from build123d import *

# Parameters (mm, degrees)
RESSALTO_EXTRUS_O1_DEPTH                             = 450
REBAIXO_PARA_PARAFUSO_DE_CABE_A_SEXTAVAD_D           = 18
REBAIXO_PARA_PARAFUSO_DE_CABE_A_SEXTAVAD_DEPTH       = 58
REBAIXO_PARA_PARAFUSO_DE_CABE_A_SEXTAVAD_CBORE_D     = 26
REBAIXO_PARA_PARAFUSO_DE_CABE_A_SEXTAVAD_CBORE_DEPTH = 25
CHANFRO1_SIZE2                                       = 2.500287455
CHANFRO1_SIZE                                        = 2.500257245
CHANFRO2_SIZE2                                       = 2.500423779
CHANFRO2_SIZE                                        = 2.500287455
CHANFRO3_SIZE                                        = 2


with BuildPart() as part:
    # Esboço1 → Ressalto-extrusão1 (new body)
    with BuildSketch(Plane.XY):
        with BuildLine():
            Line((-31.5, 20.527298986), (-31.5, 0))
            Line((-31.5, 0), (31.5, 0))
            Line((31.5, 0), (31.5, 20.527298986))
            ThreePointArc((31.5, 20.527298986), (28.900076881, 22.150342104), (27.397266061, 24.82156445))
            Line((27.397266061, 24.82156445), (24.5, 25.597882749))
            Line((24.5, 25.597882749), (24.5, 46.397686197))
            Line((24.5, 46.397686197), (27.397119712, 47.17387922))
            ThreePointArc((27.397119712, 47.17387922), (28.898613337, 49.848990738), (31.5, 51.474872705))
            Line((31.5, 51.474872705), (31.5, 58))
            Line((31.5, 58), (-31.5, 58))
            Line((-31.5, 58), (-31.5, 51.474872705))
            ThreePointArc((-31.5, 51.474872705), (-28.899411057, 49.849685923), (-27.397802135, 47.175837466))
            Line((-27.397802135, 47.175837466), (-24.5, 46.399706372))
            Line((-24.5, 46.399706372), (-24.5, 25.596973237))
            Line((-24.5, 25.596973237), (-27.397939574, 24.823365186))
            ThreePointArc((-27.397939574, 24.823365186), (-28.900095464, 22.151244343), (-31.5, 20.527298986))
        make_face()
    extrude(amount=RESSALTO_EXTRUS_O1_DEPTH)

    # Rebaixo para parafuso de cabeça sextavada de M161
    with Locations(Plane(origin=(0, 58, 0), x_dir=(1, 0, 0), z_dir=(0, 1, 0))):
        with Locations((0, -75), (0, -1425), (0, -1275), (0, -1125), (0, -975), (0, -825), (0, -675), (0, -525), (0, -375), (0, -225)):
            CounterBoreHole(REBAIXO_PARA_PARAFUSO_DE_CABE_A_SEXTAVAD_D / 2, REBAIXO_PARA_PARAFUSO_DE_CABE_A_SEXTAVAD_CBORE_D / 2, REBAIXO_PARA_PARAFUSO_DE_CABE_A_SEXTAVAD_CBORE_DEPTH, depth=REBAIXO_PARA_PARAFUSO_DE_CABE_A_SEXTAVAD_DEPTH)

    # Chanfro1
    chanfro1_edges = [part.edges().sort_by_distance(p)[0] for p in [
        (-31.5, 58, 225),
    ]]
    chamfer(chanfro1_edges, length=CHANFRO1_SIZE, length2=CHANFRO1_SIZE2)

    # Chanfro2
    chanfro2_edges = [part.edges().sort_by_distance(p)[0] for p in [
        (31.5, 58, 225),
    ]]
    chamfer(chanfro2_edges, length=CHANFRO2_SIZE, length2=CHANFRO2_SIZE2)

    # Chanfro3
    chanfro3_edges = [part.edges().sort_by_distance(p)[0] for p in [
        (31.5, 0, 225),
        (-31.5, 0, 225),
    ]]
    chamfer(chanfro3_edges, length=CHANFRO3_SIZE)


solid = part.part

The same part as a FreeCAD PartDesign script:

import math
import FreeCAD as App
import Part
import Sketcher
Q = App.Units.Quantity


def edges_at(feature, points):
    """Names of the edges that pass closest to the given points."""
    edges = feature.Shape.Edges
    near = lambda p: min(range(len(edges)), key=lambda i: edges[i].distToShape(Part.Vertex(*p))[0])
    return sorted({f"Edge{near(p) + 1}" for p in points})

doc = App.newDocument("Part")
body = doc.addObject("PartDesign::Body", "Body")

sketch1 = body.newObject("Sketcher::SketchObject", "Sketch")
sketch1.AttachmentSupport = (doc.getObject("XY_Plane"), [""])
sketch1.MapMode = "FlatFace"
sketch1.addGeometry(Part.LineSegment(App.Vector(-31.5, 20.5, 0), App.Vector(-31.5, 0, 0)), False)
sketch1.addGeometry(Part.LineSegment(App.Vector(-31.5, 0, 0), App.Vector(31.5, 0, 0)), False)
sketch1.addGeometry(Part.LineSegment(App.Vector(31.5, 0, 0), App.Vector(31.5, 20.5, 0)), False)
sketch1.addGeometry(Part.ArcOfCircle(Part.Circle(App.Vector(33.4, 26.4, 0), App.Vector(0, 0, 1), 6.2), math.radians(-165), math.radians(-108)), False)
sketch1.addGeometry(Part.LineSegment(App.Vector(27.4, 24.8, 0), App.Vector(24.5, 25.6, 0)), False)
sketch1.addGeometry(Part.LineSegment(App.Vector(24.5, 25.6, 0), App.Vector(24.5, 46.4, 0)), False)
sketch1.addGeometry(Part.LineSegment(App.Vector(24.5, 46.4, 0), App.Vector(27.4, 47.2, 0)), False)
sketch1.addGeometry(Part.ArcOfCircle(Part.Circle(App.Vector(33.4, 45.6, 0), App.Vector(0, 0, 1), 6.2), math.radians(108), math.radians(165)), False)
sketch1.addGeometry(Part.LineSegment(App.Vector(31.5, 51.5, 0), App.Vector(31.5, 58, 0)), False)
sketch1.addGeometry(Part.LineSegment(App.Vector(31.5, 58, 0), App.Vector(-31.5, 58, 0)), False)
sketch1.addGeometry(Part.LineSegment(App.Vector(-31.5, 58, 0), App.Vector(-31.5, 51.5, 0)), False)
sketch1.addGeometry(Part.ArcOfCircle(Part.Circle(App.Vector(-33.4, 45.6, 0), App.Vector(0, 0, 1), 6.2), math.radians(15), math.radians(72)), False)
sketch1.addGeometry(Part.LineSegment(App.Vector(-27.4, 47.2, 0), App.Vector(-24.5, 46.4, 0)), False)
sketch1.addGeometry(Part.LineSegment(App.Vector(-24.5, 46.4, 0), App.Vector(-24.5, 25.6, 0)), False)
sketch1.addGeometry(Part.LineSegment(App.Vector(-24.5, 25.6, 0), App.Vector(-27.4, 24.8, 0)), False)
sketch1.addGeometry(Part.ArcOfCircle(Part.Circle(App.Vector(-33.4, 26.4, 0), App.Vector(0, 0, 1), 6.2), math.radians(-72), math.radians(-15)), False)
sketch1.addConstraint(Sketcher.Constraint("Coincident", 0, 2, 1, 1))
sketch1.addConstraint(Sketcher.Constraint("Coincident", 1, 2, 2, 1))
sketch1.addConstraint(Sketcher.Constraint("Coincident", 2, 2, 3, 2))
sketch1.addConstraint(Sketcher.Constraint("Coincident", 3, 1, 4, 1))
sketch1.addConstraint(Sketcher.Constraint("Coincident", 4, 2, 5, 1))
sketch1.addConstraint(Sketcher.Constraint("Coincident", 5, 2, 6, 1))
sketch1.addConstraint(Sketcher.Constraint("Coincident", 6, 2, 7, 2))
sketch1.addConstraint(Sketcher.Constraint("Coincident", 7, 1, 8, 1))
sketch1.addConstraint(Sketcher.Constraint("Coincident", 8, 2, 9, 1))
sketch1.addConstraint(Sketcher.Constraint("Coincident", 9, 2, 10, 1))
sketch1.addConstraint(Sketcher.Constraint("Coincident", 10, 2, 11, 2))
sketch1.addConstraint(Sketcher.Constraint("Coincident", 11, 1, 12, 1))
sketch1.addConstraint(Sketcher.Constraint("Coincident", 12, 2, 13, 1))
sketch1.addConstraint(Sketcher.Constraint("Coincident", 13, 2, 14, 1))
sketch1.addConstraint(Sketcher.Constraint("Coincident", 14, 2, 15, 2))
sketch1.addConstraint(Sketcher.Constraint("Coincident", 15, 1, 0, 1))
sketch1.addConstraint(Sketcher.Constraint("Vertical", 0))
sketch1.addConstraint(Sketcher.Constraint("Horizontal", 1))
sketch1.addConstraint(Sketcher.Constraint("Vertical", 2))
sketch1.addConstraint(Sketcher.Constraint("Vertical", 5))
sketch1.addConstraint(Sketcher.Constraint("Vertical", 8))
sketch1.addConstraint(Sketcher.Constraint("Horizontal", 9))
sketch1.addConstraint(Sketcher.Constraint("Vertical", 10))
sketch1.addConstraint(Sketcher.Constraint("Vertical", 13))
sketch1.addConstraint(Sketcher.Constraint("Equal", 3, 11))
sketch1.addConstraint(Sketcher.Constraint("Equal", 11, 15))
sketch1.addConstraint(Sketcher.Constraint("Symmetric", 0, 2, 1, 2, -1, 1))
sketch1.addConstraint(Sketcher.Constraint("Symmetric", 7, 1, 10, 2, -2))
sketch1.addConstraint(Sketcher.Constraint("Horizontal", 7, 3, 11, 3))
sketch1.addConstraint(Sketcher.Constraint("Horizontal", 2, 2, 15, 1))
sketch1.addConstraint(Sketcher.Constraint("Vertical", 2, 2, 7, 1))
sketch1.addConstraint(Sketcher.Constraint("DistanceX", 1, 1, 1, 2, Q("63 mm")))
sketch1.addConstraint(Sketcher.Constraint("DistanceY", -1, 1, 8, 2, Q("58 mm")))
sketch1.addConstraint(Sketcher.Constraint("DistanceX", 4, 2, 2, 2, Q("7 mm")))
sketch1.addConstraint(Sketcher.Constraint("DistanceX", 10, 2, 12, 2, Q("7 mm")))
sketch1.addConstraint(Sketcher.Constraint("Radius", 3, Q("6.190992 mm")))
sketch1.addConstraint(Sketcher.Constraint("Radius", 7, Q("6.190922 mm")))
sketch1.addConstraint(Sketcher.Constraint("DistanceY", 0, 2, 0, 1, Q("20.527299 mm")))
sketch1.addConstraint(Sketcher.Constraint("DistanceX", 11, 3, 3, 3, Q("66.7549 mm")))
sketch1.addConstraint(Sketcher.Constraint("DistanceY", 14, 2, 15, 3, Q("1.603302 mm")))
sketch1.addConstraint(Sketcher.Constraint("Distance", 4, Q("2.99947 mm")))
sketch1.addConstraint(Sketcher.Constraint("Distance", 12, Q("2.999939 mm")))
sketch1.addConstraint(Sketcher.Constraint("Distance", 14, Q("2.99942 mm")))
sketch1.addConstraint(Sketcher.Constraint("DistanceY", 5, 1, 5, 2, Q("20.799803 mm")))
sketch1.addConstraint(Sketcher.Constraint("DistanceY", 8, 1, 8, 2, Q("6.525127 mm")))
sketch1.addConstraint(Sketcher.Constraint("DistanceY", 13, 2, 13, 1, Q("20.802733 mm")))
sketch1.addConstraint(Sketcher.Constraint("DistanceX", -1, 1, 3, 3, Q("33.376458 mm")))
sketch1.addConstraint(Sketcher.Constraint("DistanceX", -1, 1, 6, 2, Q("27.39712 mm")))
sketch1.addConstraint(Sketcher.Constraint("DistanceX", 14, 2, -1, 1, Q("27.39794 mm")))
sketch1.addConstraint(Sketcher.Constraint("DistanceX", 3, 1, 3, 3, Q("5.979192 mm")))
pad1 = body.newObject("PartDesign::Pad", "Pad")
pad1.Profile = sketch1
pad1.Length = 450

sketch2 = body.newObject("Sketcher::SketchObject", "Sketch001")
sketch2.AttachmentSupport = (doc.getObject("XZ_Plane"), [""])
sketch2.MapMode = "FlatFace"
sketch2.AttachmentOffset = App.Placement(App.Vector(0, 0, -58), App.Rotation())
sketch2.addGeometry(Part.Circle(App.Vector(0, 75, 0), App.Vector(0, 0, 1), 9), False)
sketch2.addGeometry(Part.Circle(App.Vector(0, 1425, 0), App.Vector(0, 0, 1), 9), False)
sketch2.addGeometry(Part.Circle(App.Vector(0, 1275, 0), App.Vector(0, 0, 1), 9), False)
sketch2.addGeometry(Part.Circle(App.Vector(0, 1125, 0), App.Vector(0, 0, 1), 9), False)
sketch2.addGeometry(Part.Circle(App.Vector(0, 975, 0), App.Vector(0, 0, 1), 9), False)
sketch2.addGeometry(Part.Circle(App.Vector(0, 825, 0), App.Vector(0, 0, 1), 9), False)
sketch2.addGeometry(Part.Circle(App.Vector(0, 675, 0), App.Vector(0, 0, 1), 9), False)
sketch2.addGeometry(Part.Circle(App.Vector(0, 525, 0), App.Vector(0, 0, 1), 9), False)
sketch2.addGeometry(Part.Circle(App.Vector(0, 375, 0), App.Vector(0, 0, 1), 9), False)
sketch2.addGeometry(Part.Circle(App.Vector(0, 225, 0), App.Vector(0, 0, 1), 9), False)
sketch2.addConstraint(Sketcher.Constraint("Equal", 0, 1))
sketch2.addConstraint(Sketcher.Constraint("Equal", 1, 2))
sketch2.addConstraint(Sketcher.Constraint("Equal", 2, 3))
sketch2.addConstraint(Sketcher.Constraint("Equal", 3, 4))
sketch2.addConstraint(Sketcher.Constraint("Equal", 4, 5))
sketch2.addConstraint(Sketcher.Constraint("Equal", 5, 6))
sketch2.addConstraint(Sketcher.Constraint("Equal", 6, 7))
sketch2.addConstraint(Sketcher.Constraint("Equal", 7, 8))
sketch2.addConstraint(Sketcher.Constraint("Equal", 8, 9))
sketch2.addConstraint(Sketcher.Constraint("PointOnObject", 0, 3, -2))
sketch2.addConstraint(Sketcher.Constraint("PointOnObject", 1, 3, -2))
sketch2.addConstraint(Sketcher.Constraint("PointOnObject", 2, 3, -2))
sketch2.addConstraint(Sketcher.Constraint("PointOnObject", 3, 3, -2))
sketch2.addConstraint(Sketcher.Constraint("PointOnObject", 4, 3, -2))
sketch2.addConstraint(Sketcher.Constraint("PointOnObject", 5, 3, -2))
sketch2.addConstraint(Sketcher.Constraint("PointOnObject", 6, 3, -2))
sketch2.addConstraint(Sketcher.Constraint("PointOnObject", 7, 3, -2))
sketch2.addConstraint(Sketcher.Constraint("PointOnObject", 8, 3, -2))
sketch2.addConstraint(Sketcher.Constraint("PointOnObject", 9, 3, -2))
sketch2.addConstraint(Sketcher.Constraint("Diameter", 0, Q("18 mm")))
sketch2.addConstraint(Sketcher.Constraint("DistanceY", -1, 1, 0, 3, Q("75 mm")))
sketch2.addConstraint(Sketcher.Constraint("DistanceY", -1, 1, 1, 3, Q("1425 mm")))
sketch2.addConstraint(Sketcher.Constraint("DistanceY", -1, 1, 2, 3, Q("1275 mm")))
sketch2.addConstraint(Sketcher.Constraint("DistanceY", -1, 1, 3, 3, Q("1125 mm")))
sketch2.addConstraint(Sketcher.Constraint("DistanceY", -1, 1, 4, 3, Q("975 mm")))
sketch2.addConstraint(Sketcher.Constraint("DistanceY", -1, 1, 5, 3, Q("825 mm")))
sketch2.addConstraint(Sketcher.Constraint("DistanceY", -1, 1, 6, 3, Q("675 mm")))
sketch2.addConstraint(Sketcher.Constraint("DistanceY", -1, 1, 7, 3, Q("525 mm")))
sketch2.addConstraint(Sketcher.Constraint("DistanceY", -1, 1, 8, 3, Q("375 mm")))
sketch2.addConstraint(Sketcher.Constraint("DistanceY", -1, 1, 9, 3, Q("225 mm")))
doc.recompute()
hole = body.newObject("PartDesign::Hole", "Hole")
hole.Profile = sketch2
hole.ThreadType = "None"
hole.Diameter = 18
hole.DepthType = "Dimension"
hole.Depth = 58
hole.DrillPoint = "Flat"
hole.HoleCutType = "Counterbore"
hole.HoleCutDiameter = 26
hole.HoleCutDepth = 25
hole.Reversed = True
doc.recompute()

chamfer = body.newObject("PartDesign::Chamfer", "Chamfer")
chamfer.Base = (hole, edges_at(hole, [(-31.5, 58, 225)]))
chamfer.ChamferType = "Two distances"
chamfer.Size = 2.500257
chamfer.Size2 = 2.500287
doc.recompute()

chamfer2 = body.newObject("PartDesign::Chamfer", "Chamfer001")
chamfer2.Base = (chamfer, edges_at(chamfer, [(31.5, 58, 225)]))
chamfer2.ChamferType = "Two distances"
chamfer2.Size = 2.500287
chamfer2.Size2 = 2.500424
doc.recompute()

chamfer3 = body.newObject("PartDesign::Chamfer", "Chamfer002")
chamfer3.Base = (chamfer2, edges_at(chamfer2, [(31.5, 0, 225), (-31.5, 0, 225)]))
chamfer3.Size = 2

doc.recompute()
